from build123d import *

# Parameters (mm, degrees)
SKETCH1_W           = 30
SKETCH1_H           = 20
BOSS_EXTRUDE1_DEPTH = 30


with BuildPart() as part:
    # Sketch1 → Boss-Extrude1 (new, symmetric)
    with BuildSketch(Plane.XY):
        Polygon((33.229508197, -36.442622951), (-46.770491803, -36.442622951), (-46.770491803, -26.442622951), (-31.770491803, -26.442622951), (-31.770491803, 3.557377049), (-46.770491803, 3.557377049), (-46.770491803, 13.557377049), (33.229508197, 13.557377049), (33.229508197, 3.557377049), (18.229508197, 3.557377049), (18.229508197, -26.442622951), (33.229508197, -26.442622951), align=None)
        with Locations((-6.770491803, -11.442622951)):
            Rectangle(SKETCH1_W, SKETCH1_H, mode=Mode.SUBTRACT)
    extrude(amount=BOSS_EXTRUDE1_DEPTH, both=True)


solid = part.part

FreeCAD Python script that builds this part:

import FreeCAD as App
import Part
import Sketcher


def add_polygon(sketch, points):
    """Adds a closed chain of lines whose ends are joined by coincident constraints."""
    first, n = sketch.GeometryCount, len(points)
    for a, b in zip(points, points[1:] + points[:1]):
        sketch.addGeometry(Part.LineSegment(App.Vector(*a, 0), App.Vector(*b, 0)), False)
    for i in range(n):
        sketch.addConstraint(Sketcher.Constraint("Coincident", first + i, 2, first + (i + 1) % n, 1))

doc = App.newDocument("Part")
body = doc.addObject("PartDesign::Body", "Body")

# Sketch on XY plane
sketch1 = body.newObject("Sketcher::SketchObject", "Sketch")
sketch1.AttachmentSupport = (doc.getObject("XY_Plane"), [""])
sketch1.MapMode = "FlatFace"
add_polygon(sketch1, [(-47, -36), (33, -36), (33, -26), (18, -26), (18, 4), (33, 4), (33, 14), (-47, 14), (-47, 4), (-32, 4), (-32, -26), (-47, -26)])  # lines 0-11
add_polygon(sketch1, [(-22, -21), (-22, -1), (8, -1), (8, -21)])  # lines 12-15
sketch1.addConstraint([
    Sketcher.Constraint("Horizontal", 0),
    Sketcher.Constraint("Vertical", 1),
    Sketcher.Constraint("Horizontal", 2),
    Sketcher.Constraint("Vertical", 3),
    Sketcher.Constraint("Horizontal", 4),
    Sketcher.Constraint("Vertical", 5),
    Sketcher.Constraint("Horizontal", 6),
    Sketcher.Constraint("Vertical", 7),
    Sketcher.Constraint("Horizontal", 8),
    Sketcher.Constraint("Vertical", 9),
    Sketcher.Constraint("Horizontal", 10),
    Sketcher.Constraint("Vertical", 11),
    Sketcher.Constraint("Vertical", 12),
    Sketcher.Constraint("Horizontal", 13),
    Sketcher.Constraint("Vertical", 14),
    Sketcher.Constraint("Horizontal", 15),
    Sketcher.Constraint("Horizontal", 4, 2, 7, 2),
    Sketcher.Constraint("Horizontal", 2, 2, 9, 2),
    Sketcher.Constraint("Vertical", 1, 2, 4, 2),
    Sketcher.Constraint("Vertical", 7, 2, 10, 2),
    Sketcher.Constraint("Equal", 4, 8),
    Sketcher.Constraint("Equal", 15, 3),
    Sketcher.Constraint("Equal", 1, 5),
    Sketcher.Constraint("DistanceX", 0, 1, 0, 2, 80.0),
    Sketcher.Constraint("DistanceX", 2, 2, 2, 1, 15.0),
    Sketcher.Constraint("DistanceX", 13, 1, 13, 2, 30.0),
    Sketcher.Constraint("DistanceY", 1, 1, 1, 2, 10.0),
    Sketcher.Constraint("DistanceY", 12, 1, 12, 2, 20.0),
    Sketcher.Constraint("DistanceX", 8, 2, 12, 2, 10.0),
    Sketcher.Constraint("DistanceY", 12, 2, 8, 2, 5.0),
    Sketcher.Constraint("DistanceX", -1, 1, 0, 2, 33.229508),
    Sketcher.Constraint("DistanceY", 0, 2, -1, 1, 36.442623),
])
pad1 = body.newObject("PartDesign::Pad", "Pad")
pad1.Profile = sketch1
pad1.Length = 60
pad1.Midplane = True

doc.recompute()
